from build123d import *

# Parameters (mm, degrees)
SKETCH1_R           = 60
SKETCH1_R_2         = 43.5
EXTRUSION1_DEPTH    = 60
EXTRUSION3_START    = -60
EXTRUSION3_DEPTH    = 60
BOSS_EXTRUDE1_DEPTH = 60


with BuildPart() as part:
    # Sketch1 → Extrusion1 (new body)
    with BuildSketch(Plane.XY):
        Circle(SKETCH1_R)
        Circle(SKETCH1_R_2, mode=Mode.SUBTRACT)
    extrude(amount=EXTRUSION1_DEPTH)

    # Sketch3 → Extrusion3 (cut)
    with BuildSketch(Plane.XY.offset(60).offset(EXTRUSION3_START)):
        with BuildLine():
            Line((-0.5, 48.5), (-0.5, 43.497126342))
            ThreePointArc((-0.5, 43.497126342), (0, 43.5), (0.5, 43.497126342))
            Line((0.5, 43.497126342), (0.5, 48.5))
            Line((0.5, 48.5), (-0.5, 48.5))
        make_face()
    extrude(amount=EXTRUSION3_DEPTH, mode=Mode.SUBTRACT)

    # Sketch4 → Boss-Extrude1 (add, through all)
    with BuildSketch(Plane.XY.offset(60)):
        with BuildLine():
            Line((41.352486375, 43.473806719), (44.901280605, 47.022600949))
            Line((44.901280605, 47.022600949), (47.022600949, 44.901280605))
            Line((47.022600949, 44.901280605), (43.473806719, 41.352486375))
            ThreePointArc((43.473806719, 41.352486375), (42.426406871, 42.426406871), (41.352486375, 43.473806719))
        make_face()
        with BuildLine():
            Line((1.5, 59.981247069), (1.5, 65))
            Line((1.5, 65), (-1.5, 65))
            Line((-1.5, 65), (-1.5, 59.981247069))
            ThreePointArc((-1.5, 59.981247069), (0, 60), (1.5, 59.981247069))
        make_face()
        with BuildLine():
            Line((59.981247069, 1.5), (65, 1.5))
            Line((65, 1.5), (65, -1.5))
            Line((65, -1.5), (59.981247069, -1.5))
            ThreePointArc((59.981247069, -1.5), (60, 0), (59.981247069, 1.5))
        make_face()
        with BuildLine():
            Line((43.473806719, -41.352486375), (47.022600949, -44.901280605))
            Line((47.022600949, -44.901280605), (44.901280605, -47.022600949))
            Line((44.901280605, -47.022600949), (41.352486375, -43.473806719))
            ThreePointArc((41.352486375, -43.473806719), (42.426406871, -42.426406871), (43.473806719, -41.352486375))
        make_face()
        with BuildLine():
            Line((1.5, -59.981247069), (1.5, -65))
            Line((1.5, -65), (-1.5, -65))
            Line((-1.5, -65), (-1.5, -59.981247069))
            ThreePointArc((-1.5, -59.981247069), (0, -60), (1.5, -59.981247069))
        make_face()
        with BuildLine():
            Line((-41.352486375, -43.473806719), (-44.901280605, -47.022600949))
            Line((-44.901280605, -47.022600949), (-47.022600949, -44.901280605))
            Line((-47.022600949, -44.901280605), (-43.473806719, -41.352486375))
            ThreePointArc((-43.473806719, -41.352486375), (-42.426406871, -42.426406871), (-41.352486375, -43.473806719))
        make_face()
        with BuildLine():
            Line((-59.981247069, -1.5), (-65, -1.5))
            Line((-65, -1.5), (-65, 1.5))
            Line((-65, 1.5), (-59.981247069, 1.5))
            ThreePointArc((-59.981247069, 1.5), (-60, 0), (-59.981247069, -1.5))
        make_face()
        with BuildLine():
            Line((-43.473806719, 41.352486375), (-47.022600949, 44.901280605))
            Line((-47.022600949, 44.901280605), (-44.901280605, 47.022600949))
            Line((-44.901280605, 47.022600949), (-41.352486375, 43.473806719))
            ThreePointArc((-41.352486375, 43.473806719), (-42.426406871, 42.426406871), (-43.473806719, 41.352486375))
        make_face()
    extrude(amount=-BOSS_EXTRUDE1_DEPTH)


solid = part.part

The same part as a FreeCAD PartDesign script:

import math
import FreeCAD as App
import Part
import Sketcher

V = App.Vector
Q = App.Units.Quantity

doc = App.newDocument("Part")
params = doc.addObject("Spreadsheet::Sheet", "Params")
for row, (alias, value) in enumerate([
    ("sketch1_diameter", "120 mm"),
    ("sketch1_diameter2", "87 mm"),
    ("pad1_length", "60 mm"),
    ("sketch2_width", "1 mm"),
    ("pocket1_length", "60 mm"),
    ("sketch3_radius", "60.000002 mm"),
    ("sketch3_radius2", "59.999999 mm"),
    ("sketch3_width", "3 mm"),
    ("sketch3_length", "3 mm"),
    ("pad2_length", "60 mm"),
], start=1):
    params.set(f"A{row}", alias)
    params.set(f"B{row}", "=" + value)
    params.setAlias(f"B{row}", alias)

body = doc.addObject("PartDesign::Body", "Body")

# Sketch on XY plane
sketch1 = body.newObject("Sketcher::SketchObject", "Sketch")
sketch1.AttachmentSupport = (doc.getObject("XY_Plane"), [""])
sketch1.MapMode = "FlatFace"
sketch1.addGeometry([
    Part.Circle(V(0, 0, 0), V(0, 0, 1), 60),
    Part.Circle(V(0, 0, 0), V(0, 0, 1), 43.5),
], False)
sketch1.addConstraint([
    Sketcher.Constraint("Coincident", 0, 3, -1, 1),
    Sketcher.Constraint("Coincident", 1, 3, -1, 1),
    Sketcher.Constraint("Diameter", 0, Q("120 mm")),
    Sketcher.Constraint("Diameter", 1, Q("87 mm")),
])
sketch1.setExpression("Constraints[2]", "Params.sketch1_diameter")
sketch1.setExpression("Constraints[3]", "Params.sketch1_diameter2")
pad1 = body.newObject("PartDesign::Pad", "Pad")
pad1.Profile = sketch1
pad1.setExpression("Length", "Params.pad1_length")

# Sketch on XY plane
sketch2 = body.newObject("Sketcher::SketchObject", "Sketch001")
sketch2.AttachmentSupport = (doc.getObject("XY_Plane"), [""])
sketch2.MapMode = "FlatFace"
sketch2.addGeometry([
    Part.LineSegment(V(-0.5, 48.5, 0), V(-0.5, 43.497126, 0)),
    Part.ArcOfCircle(Part.Circle(V(0, -0.000002, 0), V(0, 0, 1), 43.500002), math.radians(89.341413), math.radians(90.658587)),
    Part.LineSegment(V(0.5, 43.497126, 0), V(0.5, 48.5, 0)),
    Part.LineSegment(V(0.5, 48.5, 0), V(-0.5, 48.5, 0)),
], False)
sketch2.addConstraint([
    Sketcher.Constraint("Coincident", 0, 2, 1, 2),
    Sketcher.Constraint("Coincident", 1, 1, 2, 1),
    Sketcher.Constraint("Coincident", 2, 2, 3, 1),
    Sketcher.Constraint("Coincident", 3, 2, 0, 1),
    Sketcher.Constraint("Vertical", 0),
    Sketcher.Constraint("Vertical", 2),
    Sketcher.Constraint("Horizontal", 3),
    Sketcher.Constraint("Coincident", 1, 3, -1, 1),
    Sketcher.Constraint("Horizontal", 0, 2, 1, 1),
    Sketcher.Constraint("DistanceX", 3, 2, 3, 1, Q("1 mm")),
    Sketcher.Constraint("DistanceY", -1, 1, 2, 2, Q("48.5 mm")),
    Sketcher.Constraint("Radius", 1, Q("43.500002 mm")),
])
sketch2.setExpression("Constraints[9]", "Params.sketch2_width")
pocket1 = body.newObject("PartDesign::Pocket", "Pocket")
pocket1.Profile = sketch2
pocket1.setExpression("Length", "Params.pocket1_length")
pocket1.Reversed = True

# Sketch on XY plane
sketch3 = body.newObject("Sketcher::SketchObject", "Sketch002")
sketch3.AttachmentSupport = (doc.getObject("XY_Plane"), [""])
sketch3.MapMode = "FlatFace"
sketch3.AttachmentOffset = App.Placement(V(0, 0, 60), App.Rotation())
sketch3.addGeometry([
    Part.LineSegment(V(44.901281, 47.022601, 0), V(41.352486, 43.473807, 0)),  # 0
    Part.ArcOfCircle(Part.Circle(V(-0.000001, -0.000001, 0), V(0, 0, 1), 60.000002), math.radians(43.567456), math.radians(46.432544)),  # 1
    Part.LineSegment(V(43.473807, 41.352486, 0), V(47.022601, 44.901281, 0)),  # 2
    Part.LineSegment(V(47.022601, 44.901281, 0), V(44.901281, 47.022601, 0)),  # 3
    Part.LineSegment(V(1.5, 59.981247, 0), V(1.5, 65, 0)),  # 4
    Part.LineSegment(V(1.5, 65, 0), V(-1.5, 65, 0)),  # 5
    Part.LineSegment(V(-1.5, 65, 0), V(-1.5, 59.981247, 0)),  # 6
    Part.ArcOfCircle(Part.Circle(V(0, 0.000001, 0), V(0, 0, 1), 59.999999), math.radians(88.567456), math.radians(91.432544)),  # 7
    Part.LineSegment(V(65, 1.5, 0), V(59.981247, 1.5, 0)),  # 8
    Part.ArcOfCircle(Part.Circle(V(0.000001, 0, 0), V(0, 0, 1), 59.999999), math.radians(-1.432544), math.radians(1.432544)),  # 9
    Part.LineSegment(V(59.981247, -1.5, 0), V(65, -1.5, 0)),  # 10
    Part.LineSegment(V(65, -1.5, 0), V(65, 1.5, 0)),  # 11
    Part.LineSegment(V(47.022601, -44.901281, 0), V(43.473807, -41.352486, 0)),  # 12
    Part.ArcOfCircle(Part.Circle(V(-0.000001, 0.000001, 0), V(0, 0, 1), 60.000002), math.radians(-46.432544), math.radians(-43.567456)),  # 13
    Part.LineSegment(V(41.352486, -43.473807, 0), V(44.901281, -47.022601, 0)),  # 14
    Part.LineSegment(V(44.901281, -47.022601, 0), V(47.022601, -44.901281, 0)),  # 15
    Part.LineSegment(V(1.5, -65, 0), V(1.5, -59.981247, 0)),  # 16
    Part.ArcOfCircle(Part.Circle(V(0, -0.000001, 0), V(0, 0, 1), 59.999999), math.radians(-91.432544), math.radians(-88.567456)),  # 17
    Part.LineSegment(V(-1.5, -59.981247, 0), V(-1.5, -65, 0)),  # 18
    Part.LineSegment(V(-1.5, -65, 0), V(1.5, -65, 0)),  # 19
    Part.LineSegment(V(-44.901281, -47.022601, 0), V(-41.352486, -43.473807, 0)),  # 20
    Part.ArcOfCircle(Part.Circle(V(0.000001, 0.000001, 0), V(0, 0, 1), 60.000002), math.radians(-136.432544), math.radians(-133.567456)),  # 21
    Part.LineSegment(V(-43.473807, -41.352486, 0), V(-47.022601, -44.901281, 0)),  # 22
    Part.LineSegment(V(-47.022601, -44.901281, 0), V(-44.901281, -47.022601, 0)),  # 23
    Part.LineSegment(V(-65, -1.5, 0), V(-59.981247, -1.5, 0)),  # 24
    Part.ArcOfCircle(Part.Circle(V(-0.000001, 0, 0), V(0, 0, 1), 59.999999), math.radians(178.567456), math.radians(181.432544)),  # 25
    Part.LineSegment(V(-59.981247, 1.5, 0), V(-65, 1.5, 0)),  # 26
    Part.LineSegment(V(-65, 1.5, 0), V(-65, -1.5, 0)),  # 27
    Part.LineSegment(V(-47.022601, 44.901281, 0), V(-43.473807, 41.352486, 0)),  # 28
    Part.ArcOfCircle(Part.Circle(V(0.000001, -0.000001, 0), V(0, 0, 1), 60.000002), math.radians(133.567456), math.radians(136.432544)),  # 29
    Part.LineSegment(V(-41.352486, 43.473807, 0), V(-44.901281, 47.022601, 0)),  # 30
    Part.LineSegment(V(-44.901281, 47.022601, 0), V(-47.022601, 44.901281, 0)),  # 31
], False)
sketch3.addConstraint([
    Sketcher.Constraint("Coincident", 0, 2, 1, 2),
    Sketcher.Constraint("Coincident", 1, 1, 2, 1),
    Sketcher.Constraint("Coincident", 2, 2, 3, 1),
    Sketcher.Constraint("Coincident", 3, 2, 0, 1),
    Sketcher.Constraint("Coincident", 4, 2, 5, 1),
    Sketcher.Constraint("Coincident", 5, 2, 6, 1),
    Sketcher.Constraint("Coincident", 6, 2, 7, 2),
    Sketcher.Constraint("Coincident", 7, 1, 4, 1),
    Sketcher.Constraint("Coincident", 8, 2, 9, 2),
    Sketcher.Constraint("Coincident", 9, 1, 10, 1),
    Sketcher.Constraint("Coincident", 10, 2, 11, 1),
    Sketcher.Constraint("Coincident", 11, 2, 8, 1),
    Sketcher.Constraint("Coincident", 12, 2, 13, 2),
    Sketcher.Constraint("Coincident", 13, 1, 14, 1),
    Sketcher.Constraint("Coincident", 14, 2, 15, 1),
    Sketcher.Constraint("Coincident", 15, 2, 12, 1),
    Sketcher.Constraint("Coincident", 16, 2, 17, 2),
    Sketcher.Constraint("Coincident", 17, 1, 18, 1),
    Sketcher.Constraint("Coincident", 18, 2, 19, 1),
    Sketcher.Constraint("Coincident", 19, 2, 16, 1),
    Sketcher.Constraint("Coincident", 20, 2, 21, 2),
    Sketcher.Constraint("Coincident", 21, 1, 22, 1),
    Sketcher.Constraint("Coincident", 22, 2, 23, 1),
    Sketcher.Constraint("Coincident", 23, 2, 20, 1),
    Sketcher.Constraint("Coincident", 24, 2, 25, 2),
    Sketcher.Constraint("Coincident", 25, 1, 26, 1),
    Sketcher.Constraint("Coincident", 26, 2, 27, 1),
    Sketcher.Constraint("Coincident", 27, 2, 24, 1),
    Sketcher.Constraint("Coincident", 28, 2, 29, 2),
    Sketcher.Constraint("Coincident", 29, 1, 30, 1),
    Sketcher.Constraint("Coincident", 30, 2, 31, 1),
    Sketcher.Constraint("Coincident", 31, 2, 28, 1),
    Sketcher.Constraint("Vertical", 4),
    Sketcher.Constraint("Horizontal", 5),
    Sketcher.Constraint("Vertical", 6),
    Sketcher.Constraint("Horizontal", 8),
    Sketcher.Constraint("Horizontal", 10),
    Sketcher.Constraint("Vertical", 11),
    Sketcher.Constraint("Vertical", 16),
    Sketcher.Constraint("Vertical", 18),
    Sketcher.Constraint("Horizontal", 19),
    Sketcher.Constraint("Horizontal", 24),
    Sketcher.Constraint("Horizontal", 26),
    Sketcher.Constraint("Vertical", 27),
    Sketcher.Constraint("Coincident", 1, 3, -1, 1),
    Sketcher.Constraint("Coincident", 7, 3, -1, 1),
    Sketcher.Constraint("Coincident", 9, 3, -1, 1),
    Sketcher.Constraint("Coincident", 13, 3, -1, 1),
    Sketcher.Constraint("Coincident", 17, 3, -1, 1),
    Sketcher.Constraint("Coincident", 21, 3, -1, 1),
    Sketcher.Constraint("Coincident", 25, 3, -1, 1),
    Sketcher.Constraint("Coincident", 29, 3, -1, 1),
    Sketcher.Constraint("Equal", 7, 9),
    Sketcher.Constraint("Equal", 1, 13),
    Sketcher.Constraint("Equal", 9, 17),
    Sketcher.Constraint("Equal", 13, 21),
    Sketcher.Constraint("Equal", 17, 25),
    Sketcher.Constraint("Equal", 21, 29),
    Sketcher.Constraint("Symmetric", 4, 2, 18, 2, -1, 1),
    Sketcher.Constraint("Symmetric", 2, 2, 22, 2, -1, 1),
    Sketcher.Constraint("Symmetric", 3, 2, 23, 2, -1, 1),
    Sketcher.Constraint("Symmetric", 10, 2, 26, 2, -1, 1),
    Sketcher.Constraint("Symmetric", 14, 2, 30, 2, -1, 1),
    Sketcher.Constraint("Symmetric", 15, 2, 31, 2, -1, 1),
    Sketcher.Constraint("Symmetric", 15, 2, 22, 2, -2),
    Sketcher.Constraint("Symmetric", 14, 2, 23, 2, -2),
    Sketcher.Constraint("Parallel", 0, 2),
    Sketcher.Constraint("Perpendicular", 2, 3),
    Sketcher.Constraint("Parallel", 3, 12),
    Sketcher.Constraint("Parallel", 12, 14),
    Sketcher.Constraint("Perpendicular", 14, 15),
    Sketcher.Constraint("Parallel", 15, 20),
    Sketcher.Constraint("Parallel", 20, 22),
    Sketcher.Constraint("Parallel", 23, 28),
    Sketcher.Constraint("Parallel", 28, 30),
    Sketcher.Constraint("Horizontal", 6, 2, 7, 1),
    Sketcher.Constraint("Horizontal", 16, 2, 17, 1),
    Sketcher.Constraint("Horizontal", 10, 2, 24, 2),
    Sketcher.Constraint("Horizontal", 11, 2, 25, 1),
    Sketcher.Constraint("Equal", 26, 4),
    Sketcher.Constraint("Equal", 19, 11),
    Sketcher.Constraint("Equal", 0, 2),
    Sketcher.Constraint("Radius", 1, Q("60.000002 mm")),
    Sketcher.Constraint("Radius", 7, Q("59.999999 mm")),
    Sketcher.Constraint("DistanceX", 5, 2, 5, 1, Q("3 mm")),
    Sketcher.Constraint("Distance", 3, Q("3 mm")),
    Sketcher.Constraint("DistanceY", -1, 1, 4, 2, Q("65 mm")),
    Sketcher.Constraint("DistanceX", -1, 1, 2, 2, Q("47.022601 mm")),
])
sketch3.setExpression("Constraints[82]", "Params.sketch3_radius")
sketch3.setExpression("Constraints[83]", "Params.sketch3_radius2")
sketch3.setExpression("Constraints[84]", "Params.sketch3_width")
sketch3.setExpression("Constraints[85]", "Params.sketch3_length")
pad2 = body.newObject("PartDesign::Pad", "Pad001")
pad2.Profile = sketch3
pad2.setExpression("Length", "Params.pad2_length")
pad2.Reversed = True

doc.recompute()
